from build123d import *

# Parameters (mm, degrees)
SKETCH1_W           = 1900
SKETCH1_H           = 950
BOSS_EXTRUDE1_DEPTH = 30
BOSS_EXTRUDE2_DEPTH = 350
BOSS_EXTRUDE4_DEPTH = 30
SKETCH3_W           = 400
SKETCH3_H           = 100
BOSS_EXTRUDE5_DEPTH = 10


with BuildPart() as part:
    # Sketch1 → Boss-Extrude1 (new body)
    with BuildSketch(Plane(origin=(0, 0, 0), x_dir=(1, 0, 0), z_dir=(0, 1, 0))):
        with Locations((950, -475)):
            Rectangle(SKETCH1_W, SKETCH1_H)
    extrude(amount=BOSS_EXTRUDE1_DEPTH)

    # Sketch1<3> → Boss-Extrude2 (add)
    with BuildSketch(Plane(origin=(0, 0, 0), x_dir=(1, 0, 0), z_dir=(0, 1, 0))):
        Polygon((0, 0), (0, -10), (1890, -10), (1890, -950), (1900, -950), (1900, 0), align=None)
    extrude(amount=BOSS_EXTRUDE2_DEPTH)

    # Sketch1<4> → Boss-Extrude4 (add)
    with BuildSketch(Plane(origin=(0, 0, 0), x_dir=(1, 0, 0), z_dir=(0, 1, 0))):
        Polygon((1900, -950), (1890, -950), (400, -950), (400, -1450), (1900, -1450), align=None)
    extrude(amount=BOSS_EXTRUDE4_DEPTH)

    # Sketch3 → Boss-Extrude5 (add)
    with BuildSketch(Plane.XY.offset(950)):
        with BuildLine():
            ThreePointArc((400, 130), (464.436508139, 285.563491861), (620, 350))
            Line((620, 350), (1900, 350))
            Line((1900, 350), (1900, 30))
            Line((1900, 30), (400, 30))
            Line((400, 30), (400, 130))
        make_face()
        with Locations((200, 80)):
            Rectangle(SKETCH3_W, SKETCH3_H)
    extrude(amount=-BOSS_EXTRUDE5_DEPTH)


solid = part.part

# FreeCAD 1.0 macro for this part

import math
import FreeCAD as App
import Part
import Sketcher

V = App.Vector

doc = App.newDocument("Part")
body = doc.addObject("PartDesign::Body", "Body")

sketch1 = body.newObject("Sketcher::SketchObject", "Sketch")
sketch1.AttachmentSupport = (doc.getObject("XZ_Plane"), [""])
sketch1.MapMode = "FlatFace"
sketch1.addGeometry([
    Part.LineSegment(V(0, 0, 0), V(0, 950, 0)),
    Part.LineSegment(V(0, 950, 0), V(1900, 950, 0)),
    Part.LineSegment(V(1900, 950, 0), V(1900, 0, 0)),
    Part.LineSegment(V(1900, 0, 0), V(0, 0, 0)),
], False)
sketch1.addConstraint([
    Sketcher.Constraint("Coincident", 0, 2, 1, 1),
    Sketcher.Constraint("Coincident", 1, 2, 2, 1),
    Sketcher.Constraint("Coincident", 2, 2, 3, 1),
    Sketcher.Constraint("Coincident", 3, 2, 0, 1),
    Sketcher.Constraint("Vertical", 0),
    Sketcher.Constraint("Horizontal", 1),
    Sketcher.Constraint("Vertical", 2),
    Sketcher.Constraint("Horizontal", 3),
    Sketcher.Constraint("Coincident", 3, 2, -1, 1),
    Sketcher.Constraint("DistanceX", 1, 1, 1, 2, 1900.0),
    Sketcher.Constraint("DistanceY", 0, 1, 0, 2, 950.0),
])
pad1 = body.newObject("PartDesign::Pad", "Pad")
pad1.Profile = sketch1
pad1.Length = 30
pad1.Reversed = True

sketch2 = body.newObject("Sketcher::SketchObject", "Sketch001")
sketch2.AttachmentSupport = (doc.getObject("XZ_Plane"), [""])
sketch2.MapMode = "FlatFace"
sketch2.addGeometry([
    Part.LineSegment(V(0, 0, 0), V(0, 10, 0)),
    Part.LineSegment(V(0, 10, 0), V(1890, 10, 0)),
    Part.LineSegment(V(1890, 10, 0), V(1890, 950, 0)),
    Part.LineSegment(V(1890, 950, 0), V(1900, 950, 0)),
    Part.LineSegment(V(1900, 950, 0), V(1900, 0, 0)),
    Part.LineSegment(V(1900, 0, 0), V(0, 0, 0)),
], False)
sketch2.addConstraint([
    Sketcher.Constraint("Coincident", 0, 2, 1, 1),
    Sketcher.Constraint("Coincident", 1, 2, 2, 1),
    Sketcher.Constraint("Coincident", 2, 2, 3, 1),
    Sketcher.Constraint("Coincident", 3, 2, 4, 1),
    Sketcher.Constraint("Coincident", 4, 2, 5, 1),
    Sketcher.Constraint("Coincident", 5, 2, 0, 1),
    Sketcher.Constraint("Vertical", 0),
    Sketcher.Constraint("Horizontal", 1),
    Sketcher.Constraint("Vertical", 2),
    Sketcher.Constraint("Horizontal", 3),
    Sketcher.Constraint("Vertical", 4),
    Sketcher.Constraint("Horizontal", 5),
    Sketcher.Constraint("Coincident", 5, 2, -1, 1),
    Sketcher.Constraint("Equal", 3, 0),
    Sketcher.Constraint("DistanceX", 1, 1, 1, 2, 1890.0),
    Sketcher.Constraint("DistanceX", 3, 1, 3, 2, 10.0),
    Sketcher.Constraint("DistanceY", 2, 1, 2, 2, 940.0),
])
pad2 = body.newObject("PartDesign::Pad", "Pad001")
pad2.Profile = sketch2
pad2.Length = 350
pad2.Reversed = True

sketch3 = body.newObject("Sketcher::SketchObject", "Sketch002")
sketch3.AttachmentSupport = (doc.getObject("XZ_Plane"), [""])
sketch3.MapMode = "FlatFace"
sketch3.addGeometry([
    Part.LineSegment(V(1900, 950, 0), V(400, 950, 0)),
    Part.LineSegment(V(400, 950, 0), V(400, 1450, 0)),
    Part.LineSegment(V(400, 1450, 0), V(1900, 1450, 0)),
    Part.LineSegment(V(1900, 1450, 0), V(1900, 950, 0)),
], False)
sketch3.addConstraint([
    Sketcher.Constraint("Coincident", 0, 2, 1, 1),
    Sketcher.Constraint("Coincident", 1, 2, 2, 1),
    Sketcher.Constraint("Coincident", 2, 2, 3, 1),
    Sketcher.Constraint("Coincident", 3, 2, 0, 1),
    Sketcher.Constraint("Horizontal", 0),
    Sketcher.Constraint("Vertical", 1),
    Sketcher.Constraint("Horizontal", 2),
    Sketcher.Constraint("Vertical", 3),
    Sketcher.Constraint("DistanceX", 0, 2, 0, 1, 1500.0),
    Sketcher.Constraint("DistanceY", 1, 1, 1, 2, 500.0),
    Sketcher.Constraint("DistanceX", -1, 1, 0, 2, 400.0),
    Sketcher.Constraint("DistanceY", -1, 1, 0, 2, 950.0),
])
pad3 = body.newObject("PartDesign::Pad", "Pad002")
pad3.Profile = sketch3
pad3.Length = 30
pad3.Reversed = True

sketch4 = body.newObject("Sketcher::SketchObject", "Sketch003")
sketch4.AttachmentSupport = (doc.getObject("XY_Plane"), [""])
sketch4.MapMode = "FlatFace"
sketch4.AttachmentOffset = App.Placement(V(0, 0, 950), App.Rotation())
sketch4.addGeometry([
    Part.ArcOfCircle(Part.Circle(V(620, 130, 0), V(0, 0, 1), 220), math.radians(90), math.radians(180)),
    Part.LineSegment(V(400, 130, 0), V(0, 130, 0)),
    Part.LineSegment(V(0, 130, 0), V(0, 30, 0)),
    Part.LineSegment(V(0, 30, 0), V(1900, 30, 0)),
    Part.LineSegment(V(1900, 30, 0), V(1900, 350, 0)),
    Part.LineSegment(V(1900, 350, 0), V(620, 350, 0)),
], False)
sketch4.addConstraint([
    Sketcher.Constraint("Coincident", 0, 2, 1, 1),
    Sketcher.Constraint("Coincident", 1, 2, 2, 1),
    Sketcher.Constraint("Coincident", 2, 2, 3, 1),
    Sketcher.Constraint("Coincident", 3, 2, 4, 1),
    Sketcher.Constraint("Coincident", 4, 2, 5, 1),
    Sketcher.Constraint("Tangent", 5, 2, 0, 1),
    Sketcher.Constraint("Horizontal", 1),
    Sketcher.Constraint("Vertical", 2),
    Sketcher.Constraint("Horizontal", 3),
    Sketcher.Constraint("Vertical", 4),
    Sketcher.Constraint("Horizontal", 5),
    Sketcher.Constraint("PointOnObject", 1, 2, -2),
    Sketcher.Constraint("Radius", 0, 220.0),
    Sketcher.Constraint("DistanceX", 1, 2, 1, 1, 400.0),
    Sketcher.Constraint("DistanceX", 3, 1, 3, 2, 1900.0),
    Sketcher.Constraint("DistanceY", 2, 2, 2, 1, 100.0),
    Sketcher.Constraint("DistanceY", 4, 1, 4, 2, 320.0),
    Sketcher.Constraint("DistanceY", -1, 1, 0, 3, 130.0),
])
pad4 = body.newObject("PartDesign::Pad", "Pad003")
pad4.Profile = sketch4
pad4.Length = 10
pad4.Reversed = True

doc.recompute()
